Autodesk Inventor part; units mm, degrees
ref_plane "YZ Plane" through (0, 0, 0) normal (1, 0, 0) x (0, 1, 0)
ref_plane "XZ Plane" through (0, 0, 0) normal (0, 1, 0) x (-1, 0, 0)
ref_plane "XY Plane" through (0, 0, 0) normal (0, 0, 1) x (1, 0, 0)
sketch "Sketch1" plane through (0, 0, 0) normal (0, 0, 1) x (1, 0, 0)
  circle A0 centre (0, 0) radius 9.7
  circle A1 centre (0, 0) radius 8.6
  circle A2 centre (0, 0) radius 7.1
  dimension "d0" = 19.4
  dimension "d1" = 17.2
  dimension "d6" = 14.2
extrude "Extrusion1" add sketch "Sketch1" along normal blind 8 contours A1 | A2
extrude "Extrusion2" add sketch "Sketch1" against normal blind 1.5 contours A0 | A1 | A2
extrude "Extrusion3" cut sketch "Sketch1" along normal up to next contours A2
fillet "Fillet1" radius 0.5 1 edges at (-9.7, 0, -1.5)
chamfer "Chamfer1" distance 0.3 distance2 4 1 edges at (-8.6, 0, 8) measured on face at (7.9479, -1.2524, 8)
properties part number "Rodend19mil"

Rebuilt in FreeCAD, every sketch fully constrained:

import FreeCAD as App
import Part
import Sketcher
from FreeCAD import Vector


def edges_at(feature, points):
    """Names of the edges that pass closest to the given points."""
    edges = feature.Shape.Edges
    near = lambda p: min(range(len(edges)), key=lambda i: edges[i].distToShape(Part.Vertex(*p))[0])
    return sorted({f"Edge{near(p) + 1}" for p in points})

doc = App.newDocument("Part")
params = doc.addObject("Spreadsheet::Sheet", "Params")
for row, (alias, value) in enumerate([
    ("sketch1_diameter", "17.2 mm"),
    ("pad1_length", "8 mm"),
    ("sketch2_diameter", "19.4 mm"),
    ("pad2_length", "1.5 mm"),
    ("sketch3_diameter", "14.2 mm"),
    ("fillet_radius", "0.5 mm"),
    ("chamfer_size", "0.3 mm"),
    ("chamfer_size2", "4 mm"),
], start=1):
    params.set(f"A{row}", alias)
    params.set(f"B{row}", "=" + value)
    params.setAlias(f"B{row}", alias)

body = doc.addObject("PartDesign::Body", "Body")

# Sketch on XY plane
sketch1 = doc.addObject("Sketcher::SketchObject", "Sketch")
body.addObject(sketch1)
sketch1.AttachmentSupport = (doc.XY_Plane, [""])
sketch1.MapMode = "FlatFace"
sketch1.addGeometry(Part.Circle(Vector(0, 0, 0), Vector(0, 0, 1), 9), False)
sketch1.addConstraint([
    Sketcher.Constraint("Coincident", 0, 3, -1, 1),
    Sketcher.Constraint("Diameter", 0, 17.2),
])
sketch1.setExpression("Constraints[1]", "Params.sketch1_diameter")
pad1 = doc.addObject("PartDesign::Pad", "Pad")
body.addObject(pad1)
pad1.Profile = sketch1
pad1.setExpression("Length", "Params.pad1_length")

# Sketch on XY plane
sketch2 = doc.addObject("Sketcher::SketchObject", "Sketch001")
body.addObject(sketch2)
sketch2.AttachmentSupport = (doc.XY_Plane, [""])
sketch2.MapMode = "FlatFace"
sketch2.addGeometry(Part.Circle(Vector(0, 0, 0), Vector(0, 0, 1), 10), False)
sketch2.addConstraint([
    Sketcher.Constraint("Coincident", 0, 3, -1, 1),
    Sketcher.Constraint("Diameter", 0, 19.4),
])
sketch2.setExpression("Constraints[1]", "Params.sketch2_diameter")
pad2 = doc.addObject("PartDesign::Pad", "Pad001")
body.addObject(pad2)
pad2.Profile = sketch2
pad2.setExpression("Length", "Params.pad2_length")
pad2.Reversed = True

# Sketch on XY plane
sketch3 = doc.addObject("Sketcher::SketchObject", "Sketch002")
body.addObject(sketch3)
sketch3.AttachmentSupport = (doc.XY_Plane, [""])
sketch3.MapMode = "FlatFace"
sketch3.addGeometry(Part.Circle(Vector(0, 0, 0), Vector(0, 0, 1), 7), False)
sketch3.addConstraint([
    Sketcher.Constraint("Coincident", 0, 3, -1, 1),
    Sketcher.Constraint("Diameter", 0, 14.2),
])
sketch3.setExpression("Constraints[1]", "Params.sketch3_diameter")
pocket1 = doc.addObject("PartDesign::Pocket", "Pocket")
body.addObject(pocket1)
pocket1.Profile = sketch3
pocket1.Type = "UpToFirst"
pocket1.Reversed = True
doc.recompute()

fillet = doc.addObject("PartDesign::Fillet", "Fillet")
body.addObject(fillet)
fillet.Base = (pocket1, edges_at(pocket1, [(-9.7, 0, -1.5)]))
fillet.setExpression("Radius", "Params.fillet_radius")
doc.recompute()

chamfer = doc.addObject("PartDesign::Chamfer", "Chamfer")
body.addObject(chamfer)
chamfer.Base = (fillet, edges_at(fillet, [(-8.6, 0, 8)]))
chamfer.ChamferType = "Two distances"
chamfer.setExpression("Size", "Params.chamfer_size")
chamfer.setExpression("Size2", "Params.chamfer_size2")
chamfer.FlipDirection = True

doc.recompute()
